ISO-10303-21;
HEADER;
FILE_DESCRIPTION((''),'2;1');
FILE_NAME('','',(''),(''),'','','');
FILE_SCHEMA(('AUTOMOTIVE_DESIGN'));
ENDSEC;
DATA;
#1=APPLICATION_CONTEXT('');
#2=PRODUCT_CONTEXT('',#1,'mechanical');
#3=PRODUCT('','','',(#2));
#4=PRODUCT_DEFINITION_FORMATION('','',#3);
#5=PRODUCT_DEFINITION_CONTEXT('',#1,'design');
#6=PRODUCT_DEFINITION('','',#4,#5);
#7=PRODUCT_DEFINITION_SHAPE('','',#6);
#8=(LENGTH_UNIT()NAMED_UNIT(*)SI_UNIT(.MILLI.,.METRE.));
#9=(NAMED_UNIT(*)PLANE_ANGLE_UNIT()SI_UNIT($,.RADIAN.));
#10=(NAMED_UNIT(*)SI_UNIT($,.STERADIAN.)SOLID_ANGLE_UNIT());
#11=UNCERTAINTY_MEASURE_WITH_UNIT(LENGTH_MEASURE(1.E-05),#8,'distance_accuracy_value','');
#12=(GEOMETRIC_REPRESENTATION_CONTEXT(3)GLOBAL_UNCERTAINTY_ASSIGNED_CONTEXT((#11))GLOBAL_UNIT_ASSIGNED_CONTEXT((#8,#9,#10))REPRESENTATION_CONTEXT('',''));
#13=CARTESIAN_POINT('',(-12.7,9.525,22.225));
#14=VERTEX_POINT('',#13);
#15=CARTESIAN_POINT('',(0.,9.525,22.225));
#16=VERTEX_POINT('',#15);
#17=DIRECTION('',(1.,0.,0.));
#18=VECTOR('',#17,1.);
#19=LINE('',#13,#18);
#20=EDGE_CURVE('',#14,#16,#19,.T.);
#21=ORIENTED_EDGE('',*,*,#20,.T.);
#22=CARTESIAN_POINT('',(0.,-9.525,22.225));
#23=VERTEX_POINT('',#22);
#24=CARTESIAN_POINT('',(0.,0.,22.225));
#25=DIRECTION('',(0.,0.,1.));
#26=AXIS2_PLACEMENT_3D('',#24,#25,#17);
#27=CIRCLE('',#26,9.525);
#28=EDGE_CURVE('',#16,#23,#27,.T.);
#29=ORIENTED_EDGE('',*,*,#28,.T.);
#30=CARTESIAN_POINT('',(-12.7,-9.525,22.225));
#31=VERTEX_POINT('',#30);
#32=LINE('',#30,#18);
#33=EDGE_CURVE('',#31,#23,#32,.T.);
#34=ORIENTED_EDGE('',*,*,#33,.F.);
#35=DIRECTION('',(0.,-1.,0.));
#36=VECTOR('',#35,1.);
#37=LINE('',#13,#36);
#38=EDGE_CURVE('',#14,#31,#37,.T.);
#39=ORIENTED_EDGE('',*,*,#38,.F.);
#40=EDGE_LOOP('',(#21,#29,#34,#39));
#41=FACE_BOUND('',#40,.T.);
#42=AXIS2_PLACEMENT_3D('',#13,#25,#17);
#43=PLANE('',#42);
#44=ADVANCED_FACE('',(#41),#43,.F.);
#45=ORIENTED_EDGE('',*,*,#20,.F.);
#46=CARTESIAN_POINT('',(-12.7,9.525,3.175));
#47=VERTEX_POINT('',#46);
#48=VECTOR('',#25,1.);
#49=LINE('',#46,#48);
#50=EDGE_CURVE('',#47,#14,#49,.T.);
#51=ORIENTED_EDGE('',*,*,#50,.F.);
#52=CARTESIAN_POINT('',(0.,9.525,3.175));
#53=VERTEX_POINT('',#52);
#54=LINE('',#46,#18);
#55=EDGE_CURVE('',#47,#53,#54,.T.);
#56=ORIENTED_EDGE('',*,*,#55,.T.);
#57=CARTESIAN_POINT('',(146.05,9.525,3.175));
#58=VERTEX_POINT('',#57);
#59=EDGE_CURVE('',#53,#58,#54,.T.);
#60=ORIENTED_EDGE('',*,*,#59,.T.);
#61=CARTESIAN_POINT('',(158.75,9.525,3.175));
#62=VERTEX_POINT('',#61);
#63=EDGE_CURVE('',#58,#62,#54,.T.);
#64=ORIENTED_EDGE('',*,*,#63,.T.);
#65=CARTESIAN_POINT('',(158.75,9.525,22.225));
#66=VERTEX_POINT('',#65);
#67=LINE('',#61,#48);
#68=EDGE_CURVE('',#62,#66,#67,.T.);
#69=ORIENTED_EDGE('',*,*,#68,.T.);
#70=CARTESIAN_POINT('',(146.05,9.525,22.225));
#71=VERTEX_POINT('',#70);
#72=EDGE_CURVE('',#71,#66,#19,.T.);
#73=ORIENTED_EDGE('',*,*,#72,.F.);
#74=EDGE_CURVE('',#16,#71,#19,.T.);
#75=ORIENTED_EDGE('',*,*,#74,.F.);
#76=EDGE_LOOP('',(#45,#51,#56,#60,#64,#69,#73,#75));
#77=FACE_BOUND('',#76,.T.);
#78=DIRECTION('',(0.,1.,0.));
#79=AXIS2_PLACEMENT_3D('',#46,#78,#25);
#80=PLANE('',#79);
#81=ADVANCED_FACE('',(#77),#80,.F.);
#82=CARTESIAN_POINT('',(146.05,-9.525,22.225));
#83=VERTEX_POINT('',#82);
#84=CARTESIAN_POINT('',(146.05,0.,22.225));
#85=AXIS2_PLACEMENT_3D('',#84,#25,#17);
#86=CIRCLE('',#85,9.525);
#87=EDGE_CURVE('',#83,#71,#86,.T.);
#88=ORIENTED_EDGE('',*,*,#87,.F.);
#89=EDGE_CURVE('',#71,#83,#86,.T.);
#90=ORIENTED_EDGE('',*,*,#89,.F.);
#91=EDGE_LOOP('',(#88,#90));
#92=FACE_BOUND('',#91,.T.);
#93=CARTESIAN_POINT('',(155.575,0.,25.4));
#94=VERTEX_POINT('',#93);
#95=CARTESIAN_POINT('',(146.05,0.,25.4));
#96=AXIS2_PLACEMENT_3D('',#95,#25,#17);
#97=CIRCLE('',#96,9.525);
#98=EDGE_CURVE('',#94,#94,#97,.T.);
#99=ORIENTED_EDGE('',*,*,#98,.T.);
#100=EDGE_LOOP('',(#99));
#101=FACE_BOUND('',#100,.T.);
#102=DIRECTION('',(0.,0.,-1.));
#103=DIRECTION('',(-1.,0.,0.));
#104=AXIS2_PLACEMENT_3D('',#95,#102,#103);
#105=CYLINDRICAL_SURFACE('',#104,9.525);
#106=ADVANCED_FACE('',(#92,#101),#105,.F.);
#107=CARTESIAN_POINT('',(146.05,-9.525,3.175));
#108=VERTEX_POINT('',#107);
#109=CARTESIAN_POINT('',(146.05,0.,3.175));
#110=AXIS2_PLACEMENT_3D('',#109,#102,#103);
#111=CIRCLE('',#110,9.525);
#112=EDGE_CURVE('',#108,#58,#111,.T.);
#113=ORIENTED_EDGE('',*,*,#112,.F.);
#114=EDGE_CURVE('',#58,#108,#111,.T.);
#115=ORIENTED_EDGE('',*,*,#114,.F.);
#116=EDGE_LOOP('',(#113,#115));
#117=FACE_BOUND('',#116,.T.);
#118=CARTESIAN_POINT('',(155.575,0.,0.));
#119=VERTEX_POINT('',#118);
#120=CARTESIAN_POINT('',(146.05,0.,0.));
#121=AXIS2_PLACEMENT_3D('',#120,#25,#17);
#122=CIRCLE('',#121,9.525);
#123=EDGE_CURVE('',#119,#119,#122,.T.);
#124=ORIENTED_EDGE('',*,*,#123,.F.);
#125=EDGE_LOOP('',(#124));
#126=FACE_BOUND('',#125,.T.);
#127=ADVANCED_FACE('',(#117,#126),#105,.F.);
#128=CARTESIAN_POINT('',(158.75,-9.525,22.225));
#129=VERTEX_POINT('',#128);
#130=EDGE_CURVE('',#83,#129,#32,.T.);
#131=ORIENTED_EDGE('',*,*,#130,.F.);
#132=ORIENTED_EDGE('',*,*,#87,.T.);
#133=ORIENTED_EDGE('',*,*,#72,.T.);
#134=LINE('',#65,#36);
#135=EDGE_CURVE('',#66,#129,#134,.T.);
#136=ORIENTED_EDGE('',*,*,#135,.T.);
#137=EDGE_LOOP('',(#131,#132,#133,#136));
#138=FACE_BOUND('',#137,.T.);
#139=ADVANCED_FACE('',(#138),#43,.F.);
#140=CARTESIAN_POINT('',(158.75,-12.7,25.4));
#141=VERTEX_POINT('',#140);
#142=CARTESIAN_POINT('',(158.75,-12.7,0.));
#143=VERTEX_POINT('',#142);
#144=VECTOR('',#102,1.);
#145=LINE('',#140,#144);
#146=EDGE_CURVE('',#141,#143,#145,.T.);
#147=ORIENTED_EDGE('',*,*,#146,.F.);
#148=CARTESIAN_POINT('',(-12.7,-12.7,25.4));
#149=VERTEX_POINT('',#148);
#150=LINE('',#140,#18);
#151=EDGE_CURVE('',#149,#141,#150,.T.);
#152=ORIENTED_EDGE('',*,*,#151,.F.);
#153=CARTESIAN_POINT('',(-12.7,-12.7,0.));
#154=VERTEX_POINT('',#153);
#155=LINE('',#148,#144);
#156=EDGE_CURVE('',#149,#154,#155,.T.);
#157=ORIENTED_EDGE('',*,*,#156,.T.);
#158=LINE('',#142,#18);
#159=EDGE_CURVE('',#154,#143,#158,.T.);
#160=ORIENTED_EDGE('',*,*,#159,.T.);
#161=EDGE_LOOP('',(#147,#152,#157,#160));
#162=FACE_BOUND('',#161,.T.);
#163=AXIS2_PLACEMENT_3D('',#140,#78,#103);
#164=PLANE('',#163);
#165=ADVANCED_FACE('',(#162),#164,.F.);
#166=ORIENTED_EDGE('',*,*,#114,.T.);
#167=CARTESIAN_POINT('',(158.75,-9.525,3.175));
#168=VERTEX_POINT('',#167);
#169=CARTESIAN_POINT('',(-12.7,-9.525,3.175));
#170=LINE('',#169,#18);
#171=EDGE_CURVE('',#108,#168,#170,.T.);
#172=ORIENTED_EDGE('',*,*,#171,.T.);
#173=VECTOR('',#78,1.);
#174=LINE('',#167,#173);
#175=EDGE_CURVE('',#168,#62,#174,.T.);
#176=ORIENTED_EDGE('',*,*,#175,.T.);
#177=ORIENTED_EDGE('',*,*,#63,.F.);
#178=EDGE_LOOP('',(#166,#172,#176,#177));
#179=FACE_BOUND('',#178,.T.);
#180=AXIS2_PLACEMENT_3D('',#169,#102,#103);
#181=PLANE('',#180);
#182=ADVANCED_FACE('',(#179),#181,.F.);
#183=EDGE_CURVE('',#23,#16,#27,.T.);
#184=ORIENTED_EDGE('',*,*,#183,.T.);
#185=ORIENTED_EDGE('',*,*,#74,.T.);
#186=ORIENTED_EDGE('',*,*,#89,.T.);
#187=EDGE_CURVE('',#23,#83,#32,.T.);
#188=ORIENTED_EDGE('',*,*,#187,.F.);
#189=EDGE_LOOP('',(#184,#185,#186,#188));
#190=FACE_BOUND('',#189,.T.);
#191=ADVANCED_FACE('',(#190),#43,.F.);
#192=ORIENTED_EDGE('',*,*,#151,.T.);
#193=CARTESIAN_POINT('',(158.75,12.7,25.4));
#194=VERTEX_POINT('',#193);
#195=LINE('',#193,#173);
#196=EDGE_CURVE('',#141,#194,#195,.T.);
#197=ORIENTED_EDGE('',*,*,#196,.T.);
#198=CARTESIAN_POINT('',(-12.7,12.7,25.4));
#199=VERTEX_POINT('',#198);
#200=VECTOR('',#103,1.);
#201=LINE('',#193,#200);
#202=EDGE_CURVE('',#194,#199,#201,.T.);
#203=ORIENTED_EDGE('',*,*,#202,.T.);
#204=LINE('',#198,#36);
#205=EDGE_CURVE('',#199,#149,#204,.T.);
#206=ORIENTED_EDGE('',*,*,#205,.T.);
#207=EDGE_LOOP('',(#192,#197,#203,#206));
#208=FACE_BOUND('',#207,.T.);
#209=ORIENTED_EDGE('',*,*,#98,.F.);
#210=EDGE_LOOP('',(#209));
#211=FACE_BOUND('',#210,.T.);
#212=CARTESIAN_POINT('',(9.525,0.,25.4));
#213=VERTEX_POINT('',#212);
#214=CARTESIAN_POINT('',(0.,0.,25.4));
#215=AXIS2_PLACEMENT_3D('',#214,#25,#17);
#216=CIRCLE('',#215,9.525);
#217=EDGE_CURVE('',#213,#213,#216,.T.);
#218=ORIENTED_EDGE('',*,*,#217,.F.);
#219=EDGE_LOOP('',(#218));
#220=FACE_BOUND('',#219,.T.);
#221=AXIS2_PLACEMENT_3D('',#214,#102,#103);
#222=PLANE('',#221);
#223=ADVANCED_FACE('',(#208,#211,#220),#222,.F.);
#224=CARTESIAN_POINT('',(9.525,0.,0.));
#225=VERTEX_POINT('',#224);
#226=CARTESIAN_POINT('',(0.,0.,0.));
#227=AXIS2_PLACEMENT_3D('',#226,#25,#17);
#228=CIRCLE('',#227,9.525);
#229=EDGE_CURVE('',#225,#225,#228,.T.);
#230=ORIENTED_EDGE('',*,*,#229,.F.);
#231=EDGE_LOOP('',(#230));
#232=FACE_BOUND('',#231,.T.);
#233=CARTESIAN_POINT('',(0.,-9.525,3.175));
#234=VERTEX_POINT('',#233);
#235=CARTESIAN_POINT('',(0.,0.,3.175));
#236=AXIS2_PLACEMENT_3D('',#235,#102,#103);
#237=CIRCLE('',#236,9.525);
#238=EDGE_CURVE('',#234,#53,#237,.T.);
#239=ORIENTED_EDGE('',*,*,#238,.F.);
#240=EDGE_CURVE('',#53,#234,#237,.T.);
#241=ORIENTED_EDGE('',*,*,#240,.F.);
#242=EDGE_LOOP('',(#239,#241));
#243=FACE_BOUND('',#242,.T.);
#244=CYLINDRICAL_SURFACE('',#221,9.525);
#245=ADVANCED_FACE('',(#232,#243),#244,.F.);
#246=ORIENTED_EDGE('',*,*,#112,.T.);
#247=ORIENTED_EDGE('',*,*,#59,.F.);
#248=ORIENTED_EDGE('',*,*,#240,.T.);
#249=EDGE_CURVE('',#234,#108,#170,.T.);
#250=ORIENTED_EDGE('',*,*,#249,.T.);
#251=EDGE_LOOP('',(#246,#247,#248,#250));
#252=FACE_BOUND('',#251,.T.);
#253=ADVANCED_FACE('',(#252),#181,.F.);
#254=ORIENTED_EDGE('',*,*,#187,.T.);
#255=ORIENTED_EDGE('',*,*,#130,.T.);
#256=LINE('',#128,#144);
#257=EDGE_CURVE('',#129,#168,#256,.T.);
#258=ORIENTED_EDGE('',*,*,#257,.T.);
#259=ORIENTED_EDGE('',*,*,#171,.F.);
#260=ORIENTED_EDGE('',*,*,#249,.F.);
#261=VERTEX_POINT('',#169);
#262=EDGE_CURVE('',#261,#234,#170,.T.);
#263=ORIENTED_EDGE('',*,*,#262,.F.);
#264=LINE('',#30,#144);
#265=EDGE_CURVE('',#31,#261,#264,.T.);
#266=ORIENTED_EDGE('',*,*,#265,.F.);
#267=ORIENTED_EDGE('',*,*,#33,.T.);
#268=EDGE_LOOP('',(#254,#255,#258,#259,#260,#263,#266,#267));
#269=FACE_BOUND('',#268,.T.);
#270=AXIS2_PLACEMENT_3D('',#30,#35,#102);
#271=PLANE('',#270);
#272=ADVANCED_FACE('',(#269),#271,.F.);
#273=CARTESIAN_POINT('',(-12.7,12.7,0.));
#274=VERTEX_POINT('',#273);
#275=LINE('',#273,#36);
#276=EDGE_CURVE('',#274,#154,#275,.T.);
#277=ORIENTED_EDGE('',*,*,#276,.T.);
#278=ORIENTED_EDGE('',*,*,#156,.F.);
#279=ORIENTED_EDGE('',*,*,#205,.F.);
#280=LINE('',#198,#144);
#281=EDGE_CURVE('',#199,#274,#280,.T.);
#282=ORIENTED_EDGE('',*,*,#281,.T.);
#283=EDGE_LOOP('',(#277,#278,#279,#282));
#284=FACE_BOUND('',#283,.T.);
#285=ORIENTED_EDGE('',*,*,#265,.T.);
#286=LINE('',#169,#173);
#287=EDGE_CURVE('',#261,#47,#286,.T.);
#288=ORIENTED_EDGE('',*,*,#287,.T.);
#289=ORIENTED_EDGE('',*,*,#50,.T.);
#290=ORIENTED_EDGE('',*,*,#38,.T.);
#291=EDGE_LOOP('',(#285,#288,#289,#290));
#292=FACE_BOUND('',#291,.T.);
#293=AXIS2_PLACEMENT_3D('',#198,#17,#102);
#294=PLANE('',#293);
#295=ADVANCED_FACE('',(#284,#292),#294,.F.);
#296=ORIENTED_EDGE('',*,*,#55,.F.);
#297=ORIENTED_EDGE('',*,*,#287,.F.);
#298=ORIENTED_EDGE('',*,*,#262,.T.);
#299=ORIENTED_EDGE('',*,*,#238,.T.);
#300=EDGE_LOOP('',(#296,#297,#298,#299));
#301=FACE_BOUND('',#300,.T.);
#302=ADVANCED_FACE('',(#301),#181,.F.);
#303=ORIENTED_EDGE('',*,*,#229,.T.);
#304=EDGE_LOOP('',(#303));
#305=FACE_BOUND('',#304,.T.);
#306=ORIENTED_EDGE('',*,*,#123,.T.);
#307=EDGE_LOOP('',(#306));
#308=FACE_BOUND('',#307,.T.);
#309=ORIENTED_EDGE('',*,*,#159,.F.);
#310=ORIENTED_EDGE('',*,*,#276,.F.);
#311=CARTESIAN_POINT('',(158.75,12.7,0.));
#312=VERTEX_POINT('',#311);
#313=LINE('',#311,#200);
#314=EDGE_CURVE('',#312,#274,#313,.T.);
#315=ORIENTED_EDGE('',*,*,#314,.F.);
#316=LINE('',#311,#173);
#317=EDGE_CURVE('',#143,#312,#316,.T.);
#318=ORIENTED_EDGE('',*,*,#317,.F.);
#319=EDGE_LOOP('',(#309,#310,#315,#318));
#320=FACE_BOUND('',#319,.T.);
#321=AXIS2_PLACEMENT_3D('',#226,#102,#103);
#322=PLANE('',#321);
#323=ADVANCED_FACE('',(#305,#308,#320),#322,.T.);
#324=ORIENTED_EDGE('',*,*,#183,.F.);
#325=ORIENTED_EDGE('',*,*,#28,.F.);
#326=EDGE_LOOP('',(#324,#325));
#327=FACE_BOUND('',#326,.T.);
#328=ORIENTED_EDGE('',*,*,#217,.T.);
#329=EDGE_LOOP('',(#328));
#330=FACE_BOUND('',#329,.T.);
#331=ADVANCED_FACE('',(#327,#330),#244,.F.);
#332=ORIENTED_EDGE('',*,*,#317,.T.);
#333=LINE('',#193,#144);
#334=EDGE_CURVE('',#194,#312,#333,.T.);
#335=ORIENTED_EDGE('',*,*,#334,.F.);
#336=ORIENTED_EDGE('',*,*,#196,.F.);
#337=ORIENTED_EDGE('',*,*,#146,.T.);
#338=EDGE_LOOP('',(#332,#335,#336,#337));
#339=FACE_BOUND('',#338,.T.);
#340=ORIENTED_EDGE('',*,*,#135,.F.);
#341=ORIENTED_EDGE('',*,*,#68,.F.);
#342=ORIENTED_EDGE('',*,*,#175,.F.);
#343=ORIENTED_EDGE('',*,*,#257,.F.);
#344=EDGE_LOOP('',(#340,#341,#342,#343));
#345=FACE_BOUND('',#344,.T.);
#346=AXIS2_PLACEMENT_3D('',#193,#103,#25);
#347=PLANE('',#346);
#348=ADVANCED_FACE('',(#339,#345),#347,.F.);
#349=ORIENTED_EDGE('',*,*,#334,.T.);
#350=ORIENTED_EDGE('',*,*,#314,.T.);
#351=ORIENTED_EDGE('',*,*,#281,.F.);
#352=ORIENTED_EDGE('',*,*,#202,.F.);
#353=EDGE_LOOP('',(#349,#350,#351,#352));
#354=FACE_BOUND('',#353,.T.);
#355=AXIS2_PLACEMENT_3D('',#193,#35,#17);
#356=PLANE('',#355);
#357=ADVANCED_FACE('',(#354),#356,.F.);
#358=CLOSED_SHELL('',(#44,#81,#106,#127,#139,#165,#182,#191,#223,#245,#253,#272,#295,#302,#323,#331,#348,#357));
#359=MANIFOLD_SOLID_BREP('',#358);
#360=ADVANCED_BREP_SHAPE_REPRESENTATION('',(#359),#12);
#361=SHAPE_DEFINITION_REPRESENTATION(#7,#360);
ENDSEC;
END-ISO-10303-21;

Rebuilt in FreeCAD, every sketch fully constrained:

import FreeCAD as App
import Part
import Sketcher

V = App.Vector
Q = App.Units.Quantity


def add_polygon(sketch, points):
    """Adds a closed chain of lines whose ends are joined by coincident constraints."""
    first, n = sketch.GeometryCount, len(points)
    for a, b in zip(points, points[1:] + points[:1]):
        sketch.addGeometry(Part.LineSegment(App.Vector(*a, 0), App.Vector(*b, 0)), False)
    for i in range(n):
        sketch.addConstraint(Sketcher.Constraint("Coincident", first + i, 2, first + (i + 1) % n, 1))

doc = App.newDocument("Part")
body = doc.addObject("PartDesign::Body", "Body")

# Sketch on XY plane
sketch1 = body.newObject("Sketcher::SketchObject", "Sketch")
sketch1.AttachmentSupport = (doc.getObject("XY_Plane"), [""])
sketch1.MapMode = "FlatFace"
add_polygon(sketch1, [(-13, 13), (-13, -13), (159, -13), (159, 13)])  # lines 0-3
sketch1.addGeometry(Part.Circle(V(0, 0, 0), V(0, 0, 1), 10), False)  # 4
sketch1.addGeometry(Part.Circle(V(146, 0, 0), V(0, 0, 1), 10), False)  # 5
sketch1.addConstraint(Sketcher.Constraint("Vertical", 0))
sketch1.addConstraint(Sketcher.Constraint("Horizontal", 1))
sketch1.addConstraint(Sketcher.Constraint("Vertical", 2))
sketch1.addConstraint(Sketcher.Constraint("Horizontal", 3))
sketch1.addConstraint(Sketcher.Constraint("Coincident", 4, 3, -1, 1))
sketch1.addConstraint(Sketcher.Constraint("Equal", 4, 5))
sketch1.addConstraint(Sketcher.Constraint("PointOnObject", 5, 3, -1))
sketch1.addConstraint(Sketcher.Constraint("Diameter", 4, Q("0.75 in")))
sketch1.addConstraint(Sketcher.Constraint("DistanceY", 0, 2, 0, 1, Q("1 in")))
sketch1.addConstraint(Sketcher.Constraint("DistanceX", 1, 1, 1, 2, Q("6.75 in")))
sketch1.addConstraint(Sketcher.Constraint("DistanceX", 0, 2, -1, 1, Q("0.5 in")))
sketch1.addConstraint(Sketcher.Constraint("DistanceY", 0, 2, -1, 1, Q("0.5 in")))
sketch1.addConstraint(Sketcher.Constraint("DistanceX", 5, 3, 1, 2, Q("0.5 in")))
pad1 = body.newObject("PartDesign::Pad", "Pad")
pad1.Profile = sketch1
pad1.Length = Q("1 in")

# Sketch on YZ plane
sketch2 = body.newObject("Sketcher::SketchObject", "Sketch001")
sketch2.AttachmentSupport = (doc.getObject("YZ_Plane"), [""])
sketch2.MapMode = "FlatFace"
sketch2.AttachmentOffset = App.Placement(V(0, 0, 6.25 * 25.4), App.Rotation())
add_polygon(sketch2, [(10, 22), (-10, 22), (-10, 3), (10, 3)])  # lines 0-3
sketch2.addConstraint(Sketcher.Constraint("Horizontal", 0))
sketch2.addConstraint(Sketcher.Constraint("Vertical", 1))
sketch2.addConstraint(Sketcher.Constraint("Horizontal", 2))
sketch2.addConstraint(Sketcher.Constraint("Vertical", 3))
sketch2.addConstraint(Sketcher.Constraint("Equal", 2, 1))
sketch2.addConstraint(Sketcher.Constraint("DistanceX", 0, 2, 0, 1, Q("0.75 in")))
sketch2.addConstraint(Sketcher.Constraint("DistanceX", 0, 2, -1, 1, Q("0.375 in")))
sketch2.addConstraint(Sketcher.Constraint("DistanceY", -1, 1, 0, 2, Q("0.875 in")))
pocket1 = body.newObject("PartDesign::Pocket", "Pocket")
pocket1.Profile = sketch2
pocket1.Type = "ThroughAll"

doc.recompute()
